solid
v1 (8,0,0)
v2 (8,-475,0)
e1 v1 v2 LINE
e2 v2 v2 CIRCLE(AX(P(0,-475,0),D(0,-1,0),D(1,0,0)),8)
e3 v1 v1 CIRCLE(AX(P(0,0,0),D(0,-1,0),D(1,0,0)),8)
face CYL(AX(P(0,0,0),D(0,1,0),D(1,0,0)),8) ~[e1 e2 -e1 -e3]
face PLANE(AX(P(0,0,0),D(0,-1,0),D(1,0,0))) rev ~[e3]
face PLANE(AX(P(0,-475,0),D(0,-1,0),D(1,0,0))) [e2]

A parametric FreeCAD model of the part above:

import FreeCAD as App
import Part
import Sketcher
Q = App.Units.Quantity

doc = App.newDocument("Part")
body = doc.addObject("PartDesign::Body", "Body")

# Sketch on XZ plane
sketch1 = body.newObject("Sketcher::SketchObject", "Sketch")
sketch1.AttachmentSupport = (doc.getObject("XZ_Plane"), [""])
sketch1.MapMode = "FlatFace"
sketch1.addGeometry(Part.Circle(App.Vector(0, 0, 0), App.Vector(0, 0, 1), 8), False)
sketch1.addConstraint([
    Sketcher.Constraint("Coincident", 0, 3, -1, 1),
    Sketcher.Constraint("Diameter", 0, Q("16 mm")),
])
pad1 = body.newObject("PartDesign::Pad", "Pad")
pad1.Profile = sketch1
pad1.Length = 500

# Sketch on XZ plane
sketch2 = body.newObject("Sketcher::SketchObject", "Sketch001")
sketch2.AttachmentSupport = (doc.getObject("XZ_Plane"), [""])
sketch2.MapMode = "FlatFace"
sketch2.AttachmentOffset = App.Placement(App.Vector(0, 0, 500), App.Rotation())
sketch2.addGeometry(Part.Circle(App.Vector(0, 0, 0), App.Vector(0, 0, 1), 8), False)
sketch2.addConstraint([
    Sketcher.Constraint("Coincident", 0, 3, -1, 1),
    Sketcher.Constraint("Diameter", 0, Q("16 mm")),
])
pocket1 = body.newObject("PartDesign::Pocket", "Pocket")
pocket1.Profile = sketch2
pocket1.Length = 25

doc.recompute()
